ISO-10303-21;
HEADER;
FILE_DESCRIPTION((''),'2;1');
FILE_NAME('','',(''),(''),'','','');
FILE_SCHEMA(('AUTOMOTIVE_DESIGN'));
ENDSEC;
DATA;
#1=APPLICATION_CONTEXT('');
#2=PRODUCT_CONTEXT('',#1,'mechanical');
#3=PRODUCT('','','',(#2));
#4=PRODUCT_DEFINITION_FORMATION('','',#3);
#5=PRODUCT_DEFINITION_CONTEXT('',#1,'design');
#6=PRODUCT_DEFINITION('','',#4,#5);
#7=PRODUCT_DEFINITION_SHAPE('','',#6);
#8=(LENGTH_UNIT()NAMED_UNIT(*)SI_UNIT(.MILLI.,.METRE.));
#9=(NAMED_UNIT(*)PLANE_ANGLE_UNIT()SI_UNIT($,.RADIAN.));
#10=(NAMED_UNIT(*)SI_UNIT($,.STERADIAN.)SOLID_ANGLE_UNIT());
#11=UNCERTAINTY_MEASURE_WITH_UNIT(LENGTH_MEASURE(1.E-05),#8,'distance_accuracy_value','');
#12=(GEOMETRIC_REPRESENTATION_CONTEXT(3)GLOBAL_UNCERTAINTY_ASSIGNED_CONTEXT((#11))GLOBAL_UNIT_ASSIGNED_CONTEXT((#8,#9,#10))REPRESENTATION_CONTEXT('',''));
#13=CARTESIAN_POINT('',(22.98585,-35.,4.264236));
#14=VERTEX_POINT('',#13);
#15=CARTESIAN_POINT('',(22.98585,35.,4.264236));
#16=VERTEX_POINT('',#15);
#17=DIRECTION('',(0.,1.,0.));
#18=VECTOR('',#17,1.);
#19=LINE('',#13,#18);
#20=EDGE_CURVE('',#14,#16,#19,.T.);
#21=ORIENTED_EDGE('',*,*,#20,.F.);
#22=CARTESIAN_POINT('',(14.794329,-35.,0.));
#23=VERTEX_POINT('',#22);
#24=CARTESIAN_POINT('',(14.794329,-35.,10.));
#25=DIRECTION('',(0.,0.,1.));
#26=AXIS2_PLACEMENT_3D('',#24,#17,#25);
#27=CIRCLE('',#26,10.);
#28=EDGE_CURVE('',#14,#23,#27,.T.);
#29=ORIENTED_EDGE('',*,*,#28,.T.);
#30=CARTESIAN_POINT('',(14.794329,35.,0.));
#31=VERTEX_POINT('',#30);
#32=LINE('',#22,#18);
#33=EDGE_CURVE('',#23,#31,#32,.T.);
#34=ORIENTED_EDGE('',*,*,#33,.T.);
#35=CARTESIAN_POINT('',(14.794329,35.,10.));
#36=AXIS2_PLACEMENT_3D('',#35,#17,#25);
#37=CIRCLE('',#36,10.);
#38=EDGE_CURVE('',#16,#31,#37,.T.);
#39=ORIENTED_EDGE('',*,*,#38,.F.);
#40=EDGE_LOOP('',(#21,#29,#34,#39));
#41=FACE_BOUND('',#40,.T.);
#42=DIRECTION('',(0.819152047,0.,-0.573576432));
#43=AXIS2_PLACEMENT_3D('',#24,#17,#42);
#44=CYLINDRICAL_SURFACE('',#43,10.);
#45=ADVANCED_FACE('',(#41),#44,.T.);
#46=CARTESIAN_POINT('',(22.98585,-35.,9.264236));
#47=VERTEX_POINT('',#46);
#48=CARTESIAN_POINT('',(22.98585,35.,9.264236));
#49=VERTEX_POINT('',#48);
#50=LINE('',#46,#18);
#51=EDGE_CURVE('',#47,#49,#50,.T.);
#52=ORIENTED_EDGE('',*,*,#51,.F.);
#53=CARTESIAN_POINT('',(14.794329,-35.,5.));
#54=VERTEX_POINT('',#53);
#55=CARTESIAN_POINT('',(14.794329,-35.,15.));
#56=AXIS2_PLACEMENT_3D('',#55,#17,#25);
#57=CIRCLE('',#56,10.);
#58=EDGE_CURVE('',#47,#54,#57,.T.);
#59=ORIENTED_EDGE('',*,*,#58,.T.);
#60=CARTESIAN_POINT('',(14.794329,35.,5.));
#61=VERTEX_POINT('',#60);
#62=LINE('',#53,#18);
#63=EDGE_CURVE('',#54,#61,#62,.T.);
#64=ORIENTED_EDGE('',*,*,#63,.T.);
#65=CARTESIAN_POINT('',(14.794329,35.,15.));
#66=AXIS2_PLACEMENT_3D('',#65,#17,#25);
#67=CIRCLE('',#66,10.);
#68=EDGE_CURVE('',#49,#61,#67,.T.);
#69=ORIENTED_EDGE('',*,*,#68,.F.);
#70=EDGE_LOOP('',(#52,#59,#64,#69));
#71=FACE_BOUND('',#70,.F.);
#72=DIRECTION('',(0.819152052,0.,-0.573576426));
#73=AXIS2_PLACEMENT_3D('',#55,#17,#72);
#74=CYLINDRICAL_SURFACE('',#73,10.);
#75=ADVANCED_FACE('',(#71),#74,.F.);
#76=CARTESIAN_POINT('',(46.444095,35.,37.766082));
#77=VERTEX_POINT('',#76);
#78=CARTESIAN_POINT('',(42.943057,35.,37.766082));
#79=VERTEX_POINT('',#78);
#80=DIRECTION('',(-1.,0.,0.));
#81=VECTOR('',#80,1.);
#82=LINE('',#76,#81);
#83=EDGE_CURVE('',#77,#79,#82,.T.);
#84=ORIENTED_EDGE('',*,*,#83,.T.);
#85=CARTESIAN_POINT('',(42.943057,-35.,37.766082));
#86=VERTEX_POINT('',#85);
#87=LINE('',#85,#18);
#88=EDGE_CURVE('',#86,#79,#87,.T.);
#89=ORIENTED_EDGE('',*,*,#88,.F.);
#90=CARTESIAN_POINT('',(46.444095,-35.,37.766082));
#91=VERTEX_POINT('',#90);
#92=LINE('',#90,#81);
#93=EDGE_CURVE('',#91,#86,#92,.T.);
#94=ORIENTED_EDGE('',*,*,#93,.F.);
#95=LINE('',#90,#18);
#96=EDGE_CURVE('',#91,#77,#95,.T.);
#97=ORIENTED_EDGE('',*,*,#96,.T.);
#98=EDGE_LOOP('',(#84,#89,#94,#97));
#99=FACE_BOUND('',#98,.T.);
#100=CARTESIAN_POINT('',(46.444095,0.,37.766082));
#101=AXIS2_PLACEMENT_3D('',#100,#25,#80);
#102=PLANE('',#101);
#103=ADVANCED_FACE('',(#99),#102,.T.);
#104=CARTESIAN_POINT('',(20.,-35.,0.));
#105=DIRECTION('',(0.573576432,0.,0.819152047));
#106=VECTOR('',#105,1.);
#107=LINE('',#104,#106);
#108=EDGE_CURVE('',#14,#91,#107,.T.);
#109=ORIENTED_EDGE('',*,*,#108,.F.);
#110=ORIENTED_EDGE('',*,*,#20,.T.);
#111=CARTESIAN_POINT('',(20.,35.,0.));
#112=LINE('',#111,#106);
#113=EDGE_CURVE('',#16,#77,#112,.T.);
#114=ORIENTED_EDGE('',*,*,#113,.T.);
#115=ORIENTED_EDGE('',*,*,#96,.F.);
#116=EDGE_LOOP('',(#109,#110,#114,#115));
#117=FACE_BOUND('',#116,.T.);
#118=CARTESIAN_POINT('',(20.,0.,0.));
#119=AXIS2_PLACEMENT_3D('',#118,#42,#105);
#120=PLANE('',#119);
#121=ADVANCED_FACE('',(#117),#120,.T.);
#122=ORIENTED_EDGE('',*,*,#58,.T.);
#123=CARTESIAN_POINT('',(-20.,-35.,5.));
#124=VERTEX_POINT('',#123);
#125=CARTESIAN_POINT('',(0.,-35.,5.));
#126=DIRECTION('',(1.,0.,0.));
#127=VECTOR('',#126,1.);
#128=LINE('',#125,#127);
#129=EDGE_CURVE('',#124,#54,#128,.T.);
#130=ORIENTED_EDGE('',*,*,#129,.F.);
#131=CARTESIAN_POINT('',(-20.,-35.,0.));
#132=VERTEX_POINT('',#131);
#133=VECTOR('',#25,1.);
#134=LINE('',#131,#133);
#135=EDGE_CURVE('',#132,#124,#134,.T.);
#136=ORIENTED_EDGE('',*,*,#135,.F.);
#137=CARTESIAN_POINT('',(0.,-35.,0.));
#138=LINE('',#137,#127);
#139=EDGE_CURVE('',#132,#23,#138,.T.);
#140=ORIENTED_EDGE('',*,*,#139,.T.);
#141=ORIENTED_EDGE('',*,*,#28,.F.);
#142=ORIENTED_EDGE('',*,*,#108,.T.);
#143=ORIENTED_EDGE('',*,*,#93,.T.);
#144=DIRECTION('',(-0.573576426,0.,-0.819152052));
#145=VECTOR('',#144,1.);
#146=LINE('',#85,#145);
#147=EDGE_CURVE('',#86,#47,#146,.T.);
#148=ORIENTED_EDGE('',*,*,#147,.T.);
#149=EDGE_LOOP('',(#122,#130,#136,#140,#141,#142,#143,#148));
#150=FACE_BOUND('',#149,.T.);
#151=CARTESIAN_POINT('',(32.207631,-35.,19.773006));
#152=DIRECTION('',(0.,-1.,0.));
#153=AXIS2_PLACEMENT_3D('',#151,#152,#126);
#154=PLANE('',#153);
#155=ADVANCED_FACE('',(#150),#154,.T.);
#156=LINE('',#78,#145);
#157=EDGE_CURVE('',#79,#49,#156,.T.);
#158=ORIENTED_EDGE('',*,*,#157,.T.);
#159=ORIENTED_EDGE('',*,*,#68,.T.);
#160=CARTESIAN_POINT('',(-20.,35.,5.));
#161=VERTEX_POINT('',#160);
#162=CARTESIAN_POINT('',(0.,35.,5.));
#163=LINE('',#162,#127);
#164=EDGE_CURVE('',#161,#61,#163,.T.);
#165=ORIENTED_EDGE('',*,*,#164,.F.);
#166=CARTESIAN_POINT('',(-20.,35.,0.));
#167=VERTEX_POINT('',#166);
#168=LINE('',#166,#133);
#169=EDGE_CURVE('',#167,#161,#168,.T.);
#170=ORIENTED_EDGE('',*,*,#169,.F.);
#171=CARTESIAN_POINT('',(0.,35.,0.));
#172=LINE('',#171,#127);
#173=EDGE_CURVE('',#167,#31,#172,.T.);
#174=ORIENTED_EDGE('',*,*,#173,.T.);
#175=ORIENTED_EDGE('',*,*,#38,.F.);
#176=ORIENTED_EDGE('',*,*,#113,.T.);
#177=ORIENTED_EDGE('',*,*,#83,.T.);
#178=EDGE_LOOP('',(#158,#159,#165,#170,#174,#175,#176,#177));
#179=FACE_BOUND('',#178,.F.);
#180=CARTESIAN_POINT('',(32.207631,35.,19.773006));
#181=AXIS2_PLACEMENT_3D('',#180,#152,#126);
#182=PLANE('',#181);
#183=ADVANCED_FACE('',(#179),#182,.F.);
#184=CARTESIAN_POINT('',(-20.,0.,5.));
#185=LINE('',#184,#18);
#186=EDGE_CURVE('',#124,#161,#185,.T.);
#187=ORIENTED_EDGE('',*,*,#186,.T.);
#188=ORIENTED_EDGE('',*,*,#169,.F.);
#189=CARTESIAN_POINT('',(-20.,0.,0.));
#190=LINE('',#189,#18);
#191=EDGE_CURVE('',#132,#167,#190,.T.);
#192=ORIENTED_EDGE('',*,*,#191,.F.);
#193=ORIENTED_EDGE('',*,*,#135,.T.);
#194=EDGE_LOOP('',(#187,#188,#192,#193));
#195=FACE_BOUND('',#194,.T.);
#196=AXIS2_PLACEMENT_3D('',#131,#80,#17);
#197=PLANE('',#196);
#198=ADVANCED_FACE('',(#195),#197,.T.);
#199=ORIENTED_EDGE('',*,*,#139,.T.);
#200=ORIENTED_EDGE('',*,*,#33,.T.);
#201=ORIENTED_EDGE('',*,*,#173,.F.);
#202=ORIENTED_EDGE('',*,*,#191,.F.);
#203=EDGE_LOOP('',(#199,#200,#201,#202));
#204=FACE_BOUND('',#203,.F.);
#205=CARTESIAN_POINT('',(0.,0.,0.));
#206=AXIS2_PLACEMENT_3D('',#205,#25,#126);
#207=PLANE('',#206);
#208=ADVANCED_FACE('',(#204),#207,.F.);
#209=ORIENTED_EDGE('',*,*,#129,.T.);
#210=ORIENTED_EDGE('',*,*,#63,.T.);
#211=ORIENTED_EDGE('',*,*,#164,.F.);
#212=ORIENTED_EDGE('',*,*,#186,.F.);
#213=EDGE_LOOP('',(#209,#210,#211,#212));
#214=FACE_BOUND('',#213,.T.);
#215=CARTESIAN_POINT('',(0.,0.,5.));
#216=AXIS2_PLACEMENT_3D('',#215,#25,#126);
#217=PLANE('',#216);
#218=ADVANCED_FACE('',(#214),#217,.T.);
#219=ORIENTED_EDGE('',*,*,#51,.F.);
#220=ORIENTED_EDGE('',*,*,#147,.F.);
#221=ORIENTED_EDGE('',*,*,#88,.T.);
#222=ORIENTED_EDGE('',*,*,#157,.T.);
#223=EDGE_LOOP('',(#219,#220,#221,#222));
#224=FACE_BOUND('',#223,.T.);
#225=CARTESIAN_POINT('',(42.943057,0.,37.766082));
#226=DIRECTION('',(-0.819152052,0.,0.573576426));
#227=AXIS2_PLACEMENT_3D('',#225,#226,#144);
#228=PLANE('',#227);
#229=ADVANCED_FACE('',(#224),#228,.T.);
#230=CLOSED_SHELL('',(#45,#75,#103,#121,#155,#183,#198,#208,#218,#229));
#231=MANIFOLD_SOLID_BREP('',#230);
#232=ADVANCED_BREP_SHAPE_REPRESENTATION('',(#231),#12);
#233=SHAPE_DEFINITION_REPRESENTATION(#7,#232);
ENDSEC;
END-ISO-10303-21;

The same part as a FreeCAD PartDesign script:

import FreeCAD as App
import Part
import Sketcher
Q = App.Units.Quantity


def edges_at(feature, points):
    """Names of the edges that pass closest to the given points."""
    edges = feature.Shape.Edges
    near = lambda p: min(range(len(edges)), key=lambda i: edges[i].distToShape(Part.Vertex(*p))[0])
    return sorted({f"Edge{near(p) + 1}" for p in points})

doc = App.newDocument("Part")
body = doc.addObject("PartDesign::Body", "Body")

# Sketch on XY plane
sketch1 = doc.addObject("Sketcher::SketchObject", "Sketch")
body.addObject(sketch1)
sketch1.AttachmentSupport = (doc.XY_Plane, [""])
sketch1.MapMode = "FlatFace"
sketch1.addGeometry(Part.LineSegment(App.Vector(-20, 35, 0), App.Vector(-20, -35, 0)), False)
sketch1.addGeometry(Part.LineSegment(App.Vector(-20, -35, 0), App.Vector(20, -35, 0)), False)
sketch1.addGeometry(Part.LineSegment(App.Vector(20, -35, 0), App.Vector(20, 35, 0)), False)
sketch1.addGeometry(Part.LineSegment(App.Vector(20, 35, 0), App.Vector(-20, 35, 0)), False)
sketch1.addConstraint(Sketcher.Constraint("Coincident", 0, 2, 1, 1))
sketch1.addConstraint(Sketcher.Constraint("Coincident", 1, 2, 2, 1))
sketch1.addConstraint(Sketcher.Constraint("Coincident", 2, 2, 3, 1))
sketch1.addConstraint(Sketcher.Constraint("Coincident", 3, 2, 0, 1))
sketch1.addConstraint(Sketcher.Constraint("Vertical", 0))
sketch1.addConstraint(Sketcher.Constraint("Horizontal", 1))
sketch1.addConstraint(Sketcher.Constraint("Vertical", 2))
sketch1.addConstraint(Sketcher.Constraint("Horizontal", 3))
sketch1.addConstraint(Sketcher.Constraint("Symmetric", 0, 2, 2, 2, -1, 1))
sketch1.addConstraint(Sketcher.Constraint("DistanceX", 1, 1, 1, 2, Q("40 mm")))
sketch1.addConstraint(Sketcher.Constraint("DistanceY", 0, 2, 0, 1, Q("70 mm")))
pad1 = doc.addObject("PartDesign::Pad", "Pad")
body.addObject(pad1)
pad1.Profile = sketch1
pad1.Length = 5

# Sketch on XZ plane
sketch2 = doc.addObject("Sketcher::SketchObject", "Sketch001")
body.addObject(sketch2)
sketch2.AttachmentSupport = (doc.XZ_Plane, [""])
sketch2.MapMode = "FlatFace"
sketch2.addGeometry(Part.LineSegment(App.Vector(42.9, 37.8, 0), App.Vector(20, 5, 0)), False)
sketch2.addGeometry(Part.LineSegment(App.Vector(20, 5, 0), App.Vector(20, 0, 0)), False)
sketch2.addGeometry(Part.LineSegment(App.Vector(20, 0, 0), App.Vector(46.4, 37.8, 0)), False)
sketch2.addGeometry(Part.LineSegment(App.Vector(46.4, 37.8, 0), App.Vector(42.9, 37.8, 0)), False)
sketch2.addConstraint(Sketcher.Constraint("Coincident", 0, 2, 1, 1))
sketch2.addConstraint(Sketcher.Constraint("Coincident", 1, 2, 2, 1))
sketch2.addConstraint(Sketcher.Constraint("Coincident", 2, 2, 3, 1))
sketch2.addConstraint(Sketcher.Constraint("Coincident", 3, 2, 0, 1))
sketch2.addConstraint(Sketcher.Constraint("Vertical", 1))
sketch2.addConstraint(Sketcher.Constraint("Horizontal", 3))
sketch2.addConstraint(Sketcher.Constraint("PointOnObject", 1, 2, -1))
sketch2.addConstraint(Sketcher.Constraint("Parallel", 0, 2))
sketch2.addConstraint(Sketcher.Constraint("DistanceY", 1, 2, 1, 1, Q("5 mm")))
sketch2.addConstraint(Sketcher.Constraint("Angle", 0, Q("-124.999999 deg")))
sketch2.addConstraint(Sketcher.Constraint("Distance", 0, Q("40 mm")))
sketch2.addConstraint(Sketcher.Constraint("DistanceX", -1, 1, 0, 2, Q("20 mm")))
pad2 = doc.addObject("PartDesign::Pad", "Pad001")
body.addObject(pad2)
pad2.Profile = sketch2
pad2.Length = 70
pad2.Midplane = True
doc.recompute()

fillet = doc.addObject("PartDesign::Fillet", "Fillet")
body.addObject(fillet)
fillet.Base = (pad2, edges_at(pad2, [(20, 0, 5), (20, 0, 0)]))
fillet.Radius = 10

doc.recompute()
